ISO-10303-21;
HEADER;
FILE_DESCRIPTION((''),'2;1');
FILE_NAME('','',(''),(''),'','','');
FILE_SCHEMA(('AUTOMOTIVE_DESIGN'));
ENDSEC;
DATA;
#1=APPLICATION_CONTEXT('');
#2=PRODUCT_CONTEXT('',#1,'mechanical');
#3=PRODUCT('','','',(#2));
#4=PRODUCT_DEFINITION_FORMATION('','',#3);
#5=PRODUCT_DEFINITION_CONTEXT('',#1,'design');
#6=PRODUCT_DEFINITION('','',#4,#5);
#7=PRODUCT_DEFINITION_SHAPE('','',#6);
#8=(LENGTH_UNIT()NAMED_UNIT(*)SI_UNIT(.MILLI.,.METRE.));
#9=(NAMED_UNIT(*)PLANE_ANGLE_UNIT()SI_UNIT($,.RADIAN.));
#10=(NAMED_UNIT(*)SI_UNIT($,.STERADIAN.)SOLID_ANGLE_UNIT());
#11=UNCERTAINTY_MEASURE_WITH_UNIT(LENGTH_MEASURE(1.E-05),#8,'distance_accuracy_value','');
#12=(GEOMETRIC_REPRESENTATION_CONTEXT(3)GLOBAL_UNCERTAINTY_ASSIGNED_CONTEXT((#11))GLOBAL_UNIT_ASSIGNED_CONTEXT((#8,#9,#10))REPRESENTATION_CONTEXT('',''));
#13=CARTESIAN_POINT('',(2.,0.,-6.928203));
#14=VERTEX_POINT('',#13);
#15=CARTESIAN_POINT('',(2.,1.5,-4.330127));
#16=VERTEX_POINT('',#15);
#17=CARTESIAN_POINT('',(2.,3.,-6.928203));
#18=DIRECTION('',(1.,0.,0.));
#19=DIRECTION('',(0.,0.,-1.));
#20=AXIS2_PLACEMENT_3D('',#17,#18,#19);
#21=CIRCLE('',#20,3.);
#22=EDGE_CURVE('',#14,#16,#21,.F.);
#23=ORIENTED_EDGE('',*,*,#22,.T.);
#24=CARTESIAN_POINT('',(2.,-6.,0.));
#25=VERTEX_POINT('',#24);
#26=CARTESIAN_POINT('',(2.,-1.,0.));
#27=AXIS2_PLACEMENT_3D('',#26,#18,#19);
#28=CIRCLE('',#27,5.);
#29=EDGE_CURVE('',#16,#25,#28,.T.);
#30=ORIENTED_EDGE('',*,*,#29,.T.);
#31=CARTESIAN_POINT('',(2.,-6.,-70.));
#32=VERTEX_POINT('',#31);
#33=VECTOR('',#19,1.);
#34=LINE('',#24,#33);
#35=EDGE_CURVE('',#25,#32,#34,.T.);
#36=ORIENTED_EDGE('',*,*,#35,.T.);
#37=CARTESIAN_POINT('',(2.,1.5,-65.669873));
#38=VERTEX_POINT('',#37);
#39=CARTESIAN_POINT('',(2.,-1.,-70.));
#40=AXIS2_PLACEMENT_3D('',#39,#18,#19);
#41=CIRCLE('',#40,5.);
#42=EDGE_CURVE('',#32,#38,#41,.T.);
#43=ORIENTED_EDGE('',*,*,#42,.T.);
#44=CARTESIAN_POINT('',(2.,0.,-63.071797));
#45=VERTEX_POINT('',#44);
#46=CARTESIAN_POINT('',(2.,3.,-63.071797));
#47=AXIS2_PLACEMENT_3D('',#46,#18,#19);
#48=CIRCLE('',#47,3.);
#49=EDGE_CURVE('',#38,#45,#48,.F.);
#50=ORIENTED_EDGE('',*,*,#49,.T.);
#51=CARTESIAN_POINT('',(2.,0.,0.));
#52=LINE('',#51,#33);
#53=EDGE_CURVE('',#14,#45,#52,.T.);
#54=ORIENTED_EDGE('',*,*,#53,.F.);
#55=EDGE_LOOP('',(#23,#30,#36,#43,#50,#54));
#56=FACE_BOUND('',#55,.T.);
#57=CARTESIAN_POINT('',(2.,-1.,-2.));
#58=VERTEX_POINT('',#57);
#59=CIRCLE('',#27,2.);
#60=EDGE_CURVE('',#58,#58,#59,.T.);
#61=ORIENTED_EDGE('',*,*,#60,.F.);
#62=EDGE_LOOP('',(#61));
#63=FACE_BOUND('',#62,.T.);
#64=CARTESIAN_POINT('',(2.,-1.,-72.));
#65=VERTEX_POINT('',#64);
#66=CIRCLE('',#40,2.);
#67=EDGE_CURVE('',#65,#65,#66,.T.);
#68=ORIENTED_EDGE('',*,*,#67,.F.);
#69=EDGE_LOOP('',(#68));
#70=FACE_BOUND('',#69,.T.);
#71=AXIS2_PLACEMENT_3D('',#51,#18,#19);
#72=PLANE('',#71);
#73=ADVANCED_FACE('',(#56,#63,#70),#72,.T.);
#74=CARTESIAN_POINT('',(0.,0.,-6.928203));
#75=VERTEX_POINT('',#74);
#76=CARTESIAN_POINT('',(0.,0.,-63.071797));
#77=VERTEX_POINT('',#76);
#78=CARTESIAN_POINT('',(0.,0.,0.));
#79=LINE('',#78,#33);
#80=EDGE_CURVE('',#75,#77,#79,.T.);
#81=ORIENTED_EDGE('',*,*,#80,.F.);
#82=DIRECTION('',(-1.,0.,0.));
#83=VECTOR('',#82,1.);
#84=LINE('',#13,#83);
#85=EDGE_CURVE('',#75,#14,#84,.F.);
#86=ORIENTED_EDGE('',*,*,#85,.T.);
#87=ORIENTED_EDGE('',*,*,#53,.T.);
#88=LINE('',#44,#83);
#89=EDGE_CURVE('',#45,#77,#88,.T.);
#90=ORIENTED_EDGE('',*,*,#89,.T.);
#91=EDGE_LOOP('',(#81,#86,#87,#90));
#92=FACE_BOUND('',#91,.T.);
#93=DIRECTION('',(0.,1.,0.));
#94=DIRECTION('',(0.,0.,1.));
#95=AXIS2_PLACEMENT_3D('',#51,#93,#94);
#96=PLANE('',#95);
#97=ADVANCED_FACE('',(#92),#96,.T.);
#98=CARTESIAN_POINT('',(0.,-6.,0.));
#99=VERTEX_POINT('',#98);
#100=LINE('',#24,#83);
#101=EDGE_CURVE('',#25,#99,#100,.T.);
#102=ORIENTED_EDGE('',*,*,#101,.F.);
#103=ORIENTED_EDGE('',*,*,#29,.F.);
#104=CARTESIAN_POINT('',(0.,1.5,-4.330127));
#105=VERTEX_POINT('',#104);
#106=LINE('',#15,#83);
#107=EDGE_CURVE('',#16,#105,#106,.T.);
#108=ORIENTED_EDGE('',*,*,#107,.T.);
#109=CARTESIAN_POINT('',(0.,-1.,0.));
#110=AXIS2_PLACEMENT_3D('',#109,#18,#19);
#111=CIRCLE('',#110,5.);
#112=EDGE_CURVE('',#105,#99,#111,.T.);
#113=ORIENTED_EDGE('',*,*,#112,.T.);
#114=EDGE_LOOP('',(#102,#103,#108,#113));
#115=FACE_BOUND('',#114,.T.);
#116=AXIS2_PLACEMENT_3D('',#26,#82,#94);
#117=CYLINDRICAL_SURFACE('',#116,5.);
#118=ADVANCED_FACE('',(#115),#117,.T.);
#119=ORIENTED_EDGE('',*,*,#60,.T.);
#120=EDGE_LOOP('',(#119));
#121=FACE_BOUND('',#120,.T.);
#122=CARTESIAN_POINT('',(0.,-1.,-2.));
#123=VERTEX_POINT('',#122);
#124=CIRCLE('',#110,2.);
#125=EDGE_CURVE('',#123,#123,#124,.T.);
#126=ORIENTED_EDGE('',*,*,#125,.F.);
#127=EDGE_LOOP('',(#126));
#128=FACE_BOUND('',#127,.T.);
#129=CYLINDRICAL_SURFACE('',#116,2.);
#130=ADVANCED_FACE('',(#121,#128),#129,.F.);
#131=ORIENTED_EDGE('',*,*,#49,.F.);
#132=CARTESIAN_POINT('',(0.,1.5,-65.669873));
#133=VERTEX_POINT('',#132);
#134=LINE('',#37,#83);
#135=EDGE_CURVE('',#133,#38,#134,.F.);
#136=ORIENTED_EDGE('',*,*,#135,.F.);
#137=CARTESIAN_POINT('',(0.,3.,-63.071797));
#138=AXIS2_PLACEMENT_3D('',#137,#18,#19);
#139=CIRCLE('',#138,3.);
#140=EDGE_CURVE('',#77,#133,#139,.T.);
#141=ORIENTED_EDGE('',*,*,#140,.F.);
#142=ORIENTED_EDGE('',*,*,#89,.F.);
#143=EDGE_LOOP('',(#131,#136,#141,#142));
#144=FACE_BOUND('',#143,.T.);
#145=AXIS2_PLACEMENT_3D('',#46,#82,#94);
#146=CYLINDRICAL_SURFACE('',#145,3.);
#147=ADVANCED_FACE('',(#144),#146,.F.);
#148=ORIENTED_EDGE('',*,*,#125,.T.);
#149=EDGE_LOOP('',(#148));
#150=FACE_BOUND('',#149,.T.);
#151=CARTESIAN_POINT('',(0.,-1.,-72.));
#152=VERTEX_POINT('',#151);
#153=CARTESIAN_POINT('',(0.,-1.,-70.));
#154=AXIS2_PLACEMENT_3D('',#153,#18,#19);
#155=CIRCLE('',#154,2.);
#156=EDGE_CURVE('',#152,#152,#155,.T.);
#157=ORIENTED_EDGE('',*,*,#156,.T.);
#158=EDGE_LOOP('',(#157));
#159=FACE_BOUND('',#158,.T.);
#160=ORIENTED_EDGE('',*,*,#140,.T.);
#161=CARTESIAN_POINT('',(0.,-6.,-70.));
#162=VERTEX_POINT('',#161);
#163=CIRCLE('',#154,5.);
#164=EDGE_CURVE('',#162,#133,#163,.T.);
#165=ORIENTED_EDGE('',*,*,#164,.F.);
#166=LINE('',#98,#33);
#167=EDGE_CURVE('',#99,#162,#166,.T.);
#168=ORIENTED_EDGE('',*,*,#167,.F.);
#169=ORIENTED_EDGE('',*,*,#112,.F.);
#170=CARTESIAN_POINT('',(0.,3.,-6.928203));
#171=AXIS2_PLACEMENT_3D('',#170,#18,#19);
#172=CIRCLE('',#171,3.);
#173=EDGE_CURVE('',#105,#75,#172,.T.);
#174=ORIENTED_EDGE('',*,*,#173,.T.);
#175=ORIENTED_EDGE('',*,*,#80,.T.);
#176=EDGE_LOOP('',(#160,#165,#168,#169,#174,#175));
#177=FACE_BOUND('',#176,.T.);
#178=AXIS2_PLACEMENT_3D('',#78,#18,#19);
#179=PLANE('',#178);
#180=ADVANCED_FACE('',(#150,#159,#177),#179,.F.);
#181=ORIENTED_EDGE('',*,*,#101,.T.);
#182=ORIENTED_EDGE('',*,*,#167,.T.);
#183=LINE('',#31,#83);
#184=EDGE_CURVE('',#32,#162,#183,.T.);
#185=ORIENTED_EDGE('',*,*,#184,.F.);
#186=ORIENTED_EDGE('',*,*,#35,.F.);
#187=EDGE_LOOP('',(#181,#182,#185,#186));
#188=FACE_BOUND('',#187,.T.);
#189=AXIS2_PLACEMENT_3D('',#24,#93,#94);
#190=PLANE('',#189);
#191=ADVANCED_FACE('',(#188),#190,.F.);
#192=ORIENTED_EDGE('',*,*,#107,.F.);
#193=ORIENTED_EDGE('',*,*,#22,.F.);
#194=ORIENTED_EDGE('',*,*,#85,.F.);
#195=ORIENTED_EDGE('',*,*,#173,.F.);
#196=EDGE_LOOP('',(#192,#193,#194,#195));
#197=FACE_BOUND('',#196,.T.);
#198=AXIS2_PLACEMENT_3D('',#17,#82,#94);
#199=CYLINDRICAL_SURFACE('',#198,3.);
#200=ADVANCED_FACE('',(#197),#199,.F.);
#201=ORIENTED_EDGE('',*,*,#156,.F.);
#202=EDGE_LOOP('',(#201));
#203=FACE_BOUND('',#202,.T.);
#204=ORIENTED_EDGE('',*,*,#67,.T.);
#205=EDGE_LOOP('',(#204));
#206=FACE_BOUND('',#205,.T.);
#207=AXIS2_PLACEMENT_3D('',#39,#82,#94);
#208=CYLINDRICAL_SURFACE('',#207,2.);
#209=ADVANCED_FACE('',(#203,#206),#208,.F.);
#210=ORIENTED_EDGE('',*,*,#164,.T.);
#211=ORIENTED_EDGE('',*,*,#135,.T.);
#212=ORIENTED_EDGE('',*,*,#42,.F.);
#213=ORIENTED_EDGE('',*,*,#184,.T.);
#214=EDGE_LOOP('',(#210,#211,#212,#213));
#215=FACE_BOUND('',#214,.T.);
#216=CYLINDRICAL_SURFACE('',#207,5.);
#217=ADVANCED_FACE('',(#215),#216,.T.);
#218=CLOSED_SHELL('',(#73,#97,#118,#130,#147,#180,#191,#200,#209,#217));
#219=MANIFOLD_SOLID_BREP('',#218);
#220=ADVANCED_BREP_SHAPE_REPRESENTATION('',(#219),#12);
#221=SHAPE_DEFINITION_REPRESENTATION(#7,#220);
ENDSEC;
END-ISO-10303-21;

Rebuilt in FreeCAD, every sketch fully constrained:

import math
import FreeCAD as App
import Part
import Sketcher
Q = App.Units.Quantity


def edges_at(feature, points):
    """Names of the edges that pass closest to the given points."""
    edges = feature.Shape.Edges
    near = lambda p: min(range(len(edges)), key=lambda i: edges[i].distToShape(Part.Vertex(*p))[0])
    return sorted({f"Edge{near(p) + 1}" for p in points})

doc = App.newDocument("Part")
body = doc.addObject("PartDesign::Body", "Body")

# Sketch on YZ plane
sketch1 = doc.addObject("Sketcher::SketchObject", "Sketch")
body.addObject(sketch1)
sketch1.AttachmentSupport = (doc.YZ_Plane, [""])
sketch1.MapMode = "FlatFace"
sketch1.addGeometry(Part.LineSegment(App.Vector(0, -65, 0), App.Vector(0, -5, 0)), False)
sketch1.addGeometry(Part.ArcOfCircle(Part.Circle(App.Vector(-1, 0, 0), App.Vector(0, 0, 1), 5), math.radians(-78), math.radians(180)), False)
sketch1.addGeometry(Part.LineSegment(App.Vector(-6, 0, 0), App.Vector(-6, -70, 0)), False)
sketch1.addGeometry(Part.ArcOfCircle(Part.Circle(App.Vector(-1, -70, 0), App.Vector(0, 0, 1), 5), math.radians(180), math.radians(438)), False)
sketch1.addConstraint(Sketcher.Constraint("Coincident", 0, 2, 1, 1))
sketch1.addConstraint(Sketcher.Constraint("Tangent", 1, 2, 2, 1))
sketch1.addConstraint(Sketcher.Constraint("Tangent", 2, 2, 3, 1))
sketch1.addConstraint(Sketcher.Constraint("Coincident", 3, 2, 0, 1))
sketch1.addConstraint(Sketcher.Constraint("Vertical", 0))
sketch1.addConstraint(Sketcher.Constraint("Vertical", 2))
sketch1.addConstraint(Sketcher.Constraint("Equal", 1, 3))
sketch1.addConstraint(Sketcher.Constraint("PointOnObject", 1, 3, -1))
sketch1.addConstraint(Sketcher.Constraint("PointOnObject", 0, 2, -2))
sketch1.addConstraint(Sketcher.Constraint("Radius", 1, Q("5 mm")))
sketch1.addConstraint(Sketcher.Constraint("DistanceY", 2, 2, 2, 1, Q("70 mm")))
sketch1.addConstraint(Sketcher.Constraint("DistanceX", 1, 3, -1, 1, Q("1 mm")))
pad1 = doc.addObject("PartDesign::Pad", "Pad")
body.addObject(pad1)
pad1.Profile = sketch1
pad1.Length = 2

# Sketch on YZ plane
sketch2 = doc.addObject("Sketcher::SketchObject", "Sketch001")
body.addObject(sketch2)
sketch2.AttachmentSupport = (doc.YZ_Plane, [""])
sketch2.MapMode = "FlatFace"
sketch2.addGeometry(Part.Circle(App.Vector(-1, -70, 0), App.Vector(0, 0, 1), 2), False)
sketch2.addGeometry(Part.Circle(App.Vector(-1, 0, 0), App.Vector(0, 0, 1), 2), False)
sketch2.addConstraint(Sketcher.Constraint("Equal", 0, 1))
sketch2.addConstraint(Sketcher.Constraint("PointOnObject", 1, 3, -1))
sketch2.addConstraint(Sketcher.Constraint("Vertical", 0, 3, 1, 3))
sketch2.addConstraint(Sketcher.Constraint("Diameter", 0, Q("4 mm")))
sketch2.addConstraint(Sketcher.Constraint("DistanceX", 0, 3, -1, 1, Q("1 mm")))
sketch2.addConstraint(Sketcher.Constraint("DistanceY", 0, 3, -1, 1, Q("70 mm")))
pocket1 = doc.addObject("PartDesign::Pocket", "Pocket")
body.addObject(pocket1)
pocket1.Profile = sketch2
pocket1.Type = "ThroughAll"
pocket1.Reversed = True
doc.recompute()

fillet = doc.addObject("PartDesign::Fillet", "Fillet")
body.addObject(fillet)
fillet.Base = (pocket1, edges_at(pocket1, [(1, 0, -65.101), (1, 0, -4.899)]))
fillet.Radius = 3

doc.recompute()
